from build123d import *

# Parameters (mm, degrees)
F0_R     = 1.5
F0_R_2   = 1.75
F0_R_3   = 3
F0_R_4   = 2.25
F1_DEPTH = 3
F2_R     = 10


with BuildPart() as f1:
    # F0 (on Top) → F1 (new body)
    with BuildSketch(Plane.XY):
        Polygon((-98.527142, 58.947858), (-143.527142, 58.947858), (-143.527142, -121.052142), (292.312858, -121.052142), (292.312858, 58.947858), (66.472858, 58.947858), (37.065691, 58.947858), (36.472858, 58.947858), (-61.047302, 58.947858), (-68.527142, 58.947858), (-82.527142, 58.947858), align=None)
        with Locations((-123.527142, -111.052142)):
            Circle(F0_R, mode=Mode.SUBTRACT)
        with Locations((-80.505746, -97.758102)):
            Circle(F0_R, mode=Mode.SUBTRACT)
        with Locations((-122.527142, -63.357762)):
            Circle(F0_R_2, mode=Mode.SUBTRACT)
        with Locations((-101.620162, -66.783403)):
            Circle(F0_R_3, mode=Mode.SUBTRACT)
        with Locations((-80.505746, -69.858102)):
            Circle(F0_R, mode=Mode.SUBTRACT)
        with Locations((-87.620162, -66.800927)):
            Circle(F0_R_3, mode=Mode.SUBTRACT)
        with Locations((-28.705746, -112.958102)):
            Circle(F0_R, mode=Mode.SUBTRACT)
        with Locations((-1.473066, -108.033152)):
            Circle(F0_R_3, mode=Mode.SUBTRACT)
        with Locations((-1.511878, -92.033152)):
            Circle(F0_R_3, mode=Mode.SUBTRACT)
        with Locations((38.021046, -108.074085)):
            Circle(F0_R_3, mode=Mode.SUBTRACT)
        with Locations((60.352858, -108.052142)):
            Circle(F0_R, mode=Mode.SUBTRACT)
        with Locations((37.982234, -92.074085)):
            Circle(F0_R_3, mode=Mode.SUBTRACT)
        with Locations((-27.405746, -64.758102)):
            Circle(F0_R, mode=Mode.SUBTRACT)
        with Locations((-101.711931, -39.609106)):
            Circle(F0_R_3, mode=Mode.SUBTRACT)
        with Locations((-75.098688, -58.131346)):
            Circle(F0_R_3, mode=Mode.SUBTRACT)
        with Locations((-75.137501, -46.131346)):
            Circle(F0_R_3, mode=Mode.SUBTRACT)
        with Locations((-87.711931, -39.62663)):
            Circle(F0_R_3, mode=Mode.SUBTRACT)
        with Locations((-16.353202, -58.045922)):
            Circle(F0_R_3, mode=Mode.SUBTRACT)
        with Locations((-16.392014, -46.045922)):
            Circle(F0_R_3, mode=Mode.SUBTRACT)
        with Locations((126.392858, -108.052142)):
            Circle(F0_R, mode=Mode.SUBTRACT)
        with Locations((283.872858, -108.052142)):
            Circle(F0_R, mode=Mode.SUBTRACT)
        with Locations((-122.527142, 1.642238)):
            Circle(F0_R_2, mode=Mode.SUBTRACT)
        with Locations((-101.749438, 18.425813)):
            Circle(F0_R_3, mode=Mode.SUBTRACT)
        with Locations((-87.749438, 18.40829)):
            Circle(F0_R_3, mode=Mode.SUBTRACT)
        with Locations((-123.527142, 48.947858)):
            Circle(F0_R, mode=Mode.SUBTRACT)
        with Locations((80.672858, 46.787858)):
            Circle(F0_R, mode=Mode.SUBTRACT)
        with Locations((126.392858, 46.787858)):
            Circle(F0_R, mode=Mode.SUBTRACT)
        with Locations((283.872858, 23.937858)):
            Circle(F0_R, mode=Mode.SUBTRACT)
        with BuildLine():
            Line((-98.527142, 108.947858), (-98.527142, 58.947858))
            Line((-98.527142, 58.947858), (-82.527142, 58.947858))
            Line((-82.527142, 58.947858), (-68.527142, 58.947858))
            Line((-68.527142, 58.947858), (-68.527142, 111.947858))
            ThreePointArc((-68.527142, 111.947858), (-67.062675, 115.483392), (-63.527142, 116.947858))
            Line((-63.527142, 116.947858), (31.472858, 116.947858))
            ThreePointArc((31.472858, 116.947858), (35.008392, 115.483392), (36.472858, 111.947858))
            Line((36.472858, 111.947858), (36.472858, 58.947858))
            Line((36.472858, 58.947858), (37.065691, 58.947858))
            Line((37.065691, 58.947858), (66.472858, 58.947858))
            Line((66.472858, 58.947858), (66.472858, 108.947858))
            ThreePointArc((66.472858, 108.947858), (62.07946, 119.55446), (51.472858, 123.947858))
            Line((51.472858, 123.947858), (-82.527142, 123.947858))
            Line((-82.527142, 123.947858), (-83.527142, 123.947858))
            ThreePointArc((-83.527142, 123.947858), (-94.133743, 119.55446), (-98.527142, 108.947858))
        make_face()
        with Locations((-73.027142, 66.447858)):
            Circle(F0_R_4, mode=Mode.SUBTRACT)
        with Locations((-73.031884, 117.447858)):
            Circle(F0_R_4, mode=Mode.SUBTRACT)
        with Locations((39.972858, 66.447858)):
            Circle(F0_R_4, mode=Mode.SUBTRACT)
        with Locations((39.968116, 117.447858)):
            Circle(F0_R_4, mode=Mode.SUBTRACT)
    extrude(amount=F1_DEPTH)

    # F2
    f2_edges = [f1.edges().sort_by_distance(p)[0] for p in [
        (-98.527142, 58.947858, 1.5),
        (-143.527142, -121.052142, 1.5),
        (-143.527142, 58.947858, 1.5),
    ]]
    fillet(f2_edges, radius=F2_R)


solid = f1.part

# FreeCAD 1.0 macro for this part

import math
import FreeCAD as App
import Part
import Sketcher
from FreeCAD import Vector


def edges_at(feature, points):
    """Names of the edges that pass closest to the given points."""
    edges = feature.Shape.Edges
    near = lambda p: min(range(len(edges)), key=lambda i: edges[i].distToShape(Part.Vertex(*p))[0])
    return sorted({f"Edge{near(p) + 1}" for p in points})

doc = App.newDocument("Part")
body = doc.addObject("PartDesign::Body", "Body")

sketch1 = body.newObject("Sketcher::SketchObject", "Sketch")
sketch1.AttachmentSupport = (doc.getObject("XY_Plane"), [""])
sketch1.MapMode = "FlatFace"
sketch1.addGeometry(Part.LineSegment(Vector(-143.5, 58.9, 0), Vector(-143.5, -121.1, 0)), False)
sketch1.addGeometry(Part.LineSegment(Vector(-143.5, -121.1, 0), Vector(292.3, -121.1, 0)), False)
sketch1.addGeometry(Part.LineSegment(Vector(292.3, -121.1, 0), Vector(292.3, 58.9, 0)), False)
sketch1.addGeometry(Part.LineSegment(Vector(292.3, 58.9, 0), Vector(66.5, 58.9, 0)), False)
sketch1.addGeometry(Part.LineSegment(Vector(66.5, 58.9, 0), Vector(66.5, 108.9, 0)), False)
sketch1.addGeometry(Part.ArcOfCircle(Part.Circle(Vector(51.5, 108.9, 0), Vector(0, 0, 1), 15), math.radians(0), math.radians(90)), False)
sketch1.addGeometry(Part.LineSegment(Vector(51.5, 123.9, 0), Vector(-83.5, 123.9, 0)), False)
sketch1.addGeometry(Part.ArcOfCircle(Part.Circle(Vector(-83.5, 108.9, 0), Vector(0, 0, 1), 15), math.radians(90), math.radians(180)), False)
sketch1.addGeometry(Part.LineSegment(Vector(-98.5, 108.9, 0), Vector(-98.5, 58.9, 0)), False)
sketch1.addGeometry(Part.LineSegment(Vector(-98.5, 58.9, 0), Vector(-143.5, 58.9, 0)), False)
sketch1.addGeometry(Part.Circle(Vector(-123.5, -111.1, 0), Vector(0, 0, 1), 1.5), False)
sketch1.addGeometry(Part.Circle(Vector(-80.5, -97.8, 0), Vector(0, 0, 1), 1.5), False)
sketch1.addGeometry(Part.Circle(Vector(-28.7, -113, 0), Vector(0, 0, 1), 1.5), False)
sketch1.addGeometry(Part.Circle(Vector(-122.5, -63.4, 0), Vector(0, 0, 1), 1.8), False)
sketch1.addGeometry(Part.Circle(Vector(-101.6, -66.8, 0), Vector(0, 0, 1), 3), False)
sketch1.addGeometry(Part.Circle(Vector(-87.6, -66.8, 0), Vector(0, 0, 1), 3), False)
sketch1.addGeometry(Part.Circle(Vector(-80.5, -69.9, 0), Vector(0, 0, 1), 1.5), False)
sketch1.addGeometry(Part.Circle(Vector(-75.1, -58.1, 0), Vector(0, 0, 1), 3), False)
sketch1.addGeometry(Part.Circle(Vector(-27.4, -64.8, 0), Vector(0, 0, 1), 1.5), False)
sketch1.addGeometry(Part.Circle(Vector(-1.5, -108, 0), Vector(0, 0, 1), 3), False)
sketch1.addGeometry(Part.Circle(Vector(-1.5, -92, 0), Vector(0, 0, 1), 3), False)
sketch1.addGeometry(Part.Circle(Vector(38, -108.1, 0), Vector(0, 0, 1), 3), False)
sketch1.addGeometry(Part.Circle(Vector(60.4, -108.1, 0), Vector(0, 0, 1), 1.5), False)
sketch1.addGeometry(Part.Circle(Vector(38, -92.1, 0), Vector(0, 0, 1), 3), False)
sketch1.addGeometry(Part.Circle(Vector(-16.4, -58, 0), Vector(0, 0, 1), 3), False)
sketch1.addGeometry(Part.Circle(Vector(-75.1, -46.1, 0), Vector(0, 0, 1), 3), False)
sketch1.addGeometry(Part.Circle(Vector(-101.7, -39.6, 0), Vector(0, 0, 1), 3), False)
sketch1.addGeometry(Part.Circle(Vector(-87.7, -39.6, 0), Vector(0, 0, 1), 3), False)
sketch1.addGeometry(Part.Circle(Vector(-122.5, 1.6, 0), Vector(0, 0, 1), 1.8), False)
sketch1.addGeometry(Part.Circle(Vector(-16.4, -46, 0), Vector(0, 0, 1), 3), False)
sketch1.addGeometry(Part.Circle(Vector(126.4, -108.1, 0), Vector(0, 0, 1), 1.5), False)
sketch1.addGeometry(Part.Circle(Vector(283.9, -108.1, 0), Vector(0, 0, 1), 1.5), False)
sketch1.addGeometry(Part.Circle(Vector(-101.7, 18.4, 0), Vector(0, 0, 1), 3), False)
sketch1.addGeometry(Part.Circle(Vector(-87.7, 18.4, 0), Vector(0, 0, 1), 3), False)
sketch1.addGeometry(Part.Circle(Vector(-123.5, 48.9, 0), Vector(0, 0, 1), 1.5), False)
sketch1.addGeometry(Part.Circle(Vector(-73, 66.4, 0), Vector(0, 0, 1), 2.2), False)
sketch1.addGeometry(Part.Circle(Vector(-73, 117.4, 0), Vector(0, 0, 1), 2.2), False)
sketch1.addGeometry(Part.LineSegment(Vector(36.5, 58.9, 0), Vector(-68.5, 58.9, 0)), False)
sketch1.addGeometry(Part.LineSegment(Vector(-68.5, 58.9, 0), Vector(-68.5, 111.9, 0)), False)
sketch1.addGeometry(Part.ArcOfCircle(Part.Circle(Vector(-63.5, 111.9, 0), Vector(0, 0, 1), 5), math.radians(90), math.radians(180)), False)
sketch1.addGeometry(Part.LineSegment(Vector(-63.5, 116.9, 0), Vector(31.5, 116.9, 0)), False)
sketch1.addGeometry(Part.ArcOfCircle(Part.Circle(Vector(31.5, 111.9, 0), Vector(0, 0, 1), 5), math.radians(0), math.radians(90)), False)
sketch1.addGeometry(Part.LineSegment(Vector(36.5, 111.9, 0), Vector(36.5, 58.9, 0)), False)
sketch1.addGeometry(Part.Circle(Vector(40, 66.4, 0), Vector(0, 0, 1), 2.2), False)
sketch1.addGeometry(Part.Circle(Vector(40, 117.4, 0), Vector(0, 0, 1), 2.2), False)
sketch1.addGeometry(Part.Circle(Vector(80.7, 46.8, 0), Vector(0, 0, 1), 1.5), False)
sketch1.addGeometry(Part.Circle(Vector(126.4, 46.8, 0), Vector(0, 0, 1), 1.5), False)
sketch1.addGeometry(Part.Circle(Vector(283.9, 23.9, 0), Vector(0, 0, 1), 1.5), False)
sketch1.addConstraint(Sketcher.Constraint("Coincident", 0, 2, 1, 1))
sketch1.addConstraint(Sketcher.Constraint("Coincident", 1, 2, 2, 1))
sketch1.addConstraint(Sketcher.Constraint("Coincident", 2, 2, 3, 1))
sketch1.addConstraint(Sketcher.Constraint("Coincident", 3, 2, 4, 1))
sketch1.addConstraint(Sketcher.Constraint("Tangent", 4, 2, 5, 1))
sketch1.addConstraint(Sketcher.Constraint("Tangent", 5, 2, 6, 1))
sketch1.addConstraint(Sketcher.Constraint("Tangent", 6, 2, 7, 1))
sketch1.addConstraint(Sketcher.Constraint("Tangent", 7, 2, 8, 1))
sketch1.addConstraint(Sketcher.Constraint("Coincident", 8, 2, 9, 1))
sketch1.addConstraint(Sketcher.Constraint("Coincident", 9, 2, 0, 1))
sketch1.addConstraint(Sketcher.Constraint("Coincident", 37, 2, 38, 1))
sketch1.addConstraint(Sketcher.Constraint("Tangent", 38, 2, 39, 2))
sketch1.addConstraint(Sketcher.Constraint("Tangent", 39, 1, 40, 1))
sketch1.addConstraint(Sketcher.Constraint("Tangent", 40, 2, 41, 2))
sketch1.addConstraint(Sketcher.Constraint("Tangent", 41, 1, 42, 1))
sketch1.addConstraint(Sketcher.Constraint("Coincident", 42, 2, 37, 1))
sketch1.addConstraint(Sketcher.Constraint("Vertical", 0))
sketch1.addConstraint(Sketcher.Constraint("Horizontal", 1))
sketch1.addConstraint(Sketcher.Constraint("Vertical", 2))
sketch1.addConstraint(Sketcher.Constraint("Horizontal", 3))
sketch1.addConstraint(Sketcher.Constraint("Vertical", 4))
sketch1.addConstraint(Sketcher.Constraint("Horizontal", 6))
sketch1.addConstraint(Sketcher.Constraint("Vertical", 8))
sketch1.addConstraint(Sketcher.Constraint("Horizontal", 9))
sketch1.addConstraint(Sketcher.Constraint("Horizontal", 37))
sketch1.addConstraint(Sketcher.Constraint("Vertical", 38))
sketch1.addConstraint(Sketcher.Constraint("Horizontal", 40))
sketch1.addConstraint(Sketcher.Constraint("Vertical", 42))
sketch1.addConstraint(Sketcher.Constraint("Equal", 5, 7))
sketch1.addConstraint(Sketcher.Constraint("Equal", 10, 11))
sketch1.addConstraint(Sketcher.Constraint("Equal", 11, 12))
sketch1.addConstraint(Sketcher.Constraint("Equal", 14, 15))
sketch1.addConstraint(Sketcher.Constraint("Equal", 12, 16))
sketch1.addConstraint(Sketcher.Constraint("Equal", 15, 17))
sketch1.addConstraint(Sketcher.Constraint("Equal", 16, 18))
sketch1.addConstraint(Sketcher.Constraint("Equal", 17, 19))
sketch1.addConstraint(Sketcher.Constraint("Equal", 19, 20))
sketch1.addConstraint(Sketcher.Constraint("Equal", 20, 21))
sketch1.addConstraint(Sketcher.Constraint("Equal", 18, 22))
sketch1.addConstraint(Sketcher.Constraint("Equal", 21, 23))
sketch1.addConstraint(Sketcher.Constraint("Equal", 23, 24))
sketch1.addConstraint(Sketcher.Constraint("Equal", 24, 25))
sketch1.addConstraint(Sketcher.Constraint("Equal", 25, 26))
sketch1.addConstraint(Sketcher.Constraint("Equal", 26, 27))
sketch1.addConstraint(Sketcher.Constraint("Equal", 13, 28))
sketch1.addConstraint(Sketcher.Constraint("Equal", 27, 29))
sketch1.addConstraint(Sketcher.Constraint("Equal", 22, 30))
sketch1.addConstraint(Sketcher.Constraint("Equal", 30, 31))
sketch1.addConstraint(Sketcher.Constraint("Equal", 29, 32))
sketch1.addConstraint(Sketcher.Constraint("Equal", 32, 33))
sketch1.addConstraint(Sketcher.Constraint("Equal", 31, 34))
sketch1.addConstraint(Sketcher.Constraint("Equal", 35, 36))
sketch1.addConstraint(Sketcher.Constraint("Equal", 39, 41))
sketch1.addConstraint(Sketcher.Constraint("Equal", 36, 43))
sketch1.addConstraint(Sketcher.Constraint("Equal", 43, 44))
sketch1.addConstraint(Sketcher.Constraint("Equal", 34, 45))
sketch1.addConstraint(Sketcher.Constraint("Equal", 45, 46))
sketch1.addConstraint(Sketcher.Constraint("Equal", 46, 47))
sketch1.addConstraint(Sketcher.Constraint("Horizontal", 22, 3, 30, 3))
sketch1.addConstraint(Sketcher.Constraint("Horizontal", 30, 3, 31, 3))
sketch1.addConstraint(Sketcher.Constraint("Horizontal", 35, 3, 43, 3))
sketch1.addConstraint(Sketcher.Constraint("Horizontal", 36, 3, 44, 3))
sketch1.addConstraint(Sketcher.Constraint("Horizontal", 45, 3, 46, 3))
sketch1.addConstraint(Sketcher.Constraint("Horizontal", 3, 2, 8, 2))
sketch1.addConstraint(Sketcher.Constraint("Horizontal", 9, 2, 37, 2))
sketch1.addConstraint(Sketcher.Constraint("Vertical", 11, 3, 16, 3))
sketch1.addConstraint(Sketcher.Constraint("Vertical", 13, 3, 28, 3))
sketch1.addConstraint(Sketcher.Constraint("Vertical", 10, 3, 34, 3))
sketch1.addConstraint(Sketcher.Constraint("Vertical", 30, 3, 46, 3))
sketch1.addConstraint(Sketcher.Constraint("Vertical", 31, 3, 47, 3))
sketch1.addConstraint(Sketcher.Constraint("Diameter", 10, 3.0))
sketch1.addConstraint(Sketcher.Constraint("Diameter", 14, 6.0))
sketch1.addConstraint(Sketcher.Constraint("Radius", 5, 14.999999))
sketch1.addConstraint(Sketcher.Constraint("Radius", 39, 5.000001))
sketch1.addConstraint(Sketcher.Constraint("Diameter", 13, 3.5))
sketch1.addConstraint(Sketcher.Constraint("Diameter", 35, 4.5))
sketch1.addConstraint(Sketcher.Constraint("DistanceX", 6, 2, 6, 1, 135.0))
sketch1.addConstraint(Sketcher.Constraint("DistanceX", 9, 2, 9, 1, 45.0))
sketch1.addConstraint(Sketcher.Constraint("DistanceX", 37, 2, 37, 1, 105.0))
sketch1.addConstraint(Sketcher.Constraint("DistanceY", 0, 2, 0, 1, 180.0))
sketch1.addConstraint(Sketcher.Constraint("DistanceY", 4, 1, 4, 2, 50.0))
sketch1.addConstraint(Sketcher.Constraint("DistanceY", 38, 1, 38, 2, 53.0))
sketch1.addConstraint(Sketcher.Constraint("DistanceX", 10, 3, 7, 3, 40.000001))
sketch1.addConstraint(Sketcher.Constraint("DistanceY", 10, 3, 7, 3, 219.999999))
sketch1.addConstraint(Sketcher.Constraint("DistanceX", 10, 3, 13, 3, 1.0))
sketch1.addConstraint(Sketcher.Constraint("DistanceX", 14, 3, 15, 3, 14.0))
sketch1.addConstraint(Sketcher.Constraint("DistanceY", 11, 3, 18, 3, 33.0))
sketch1.addConstraint(Sketcher.Constraint("DistanceY", 19, 3, 20, 3, 16.0))
sketch1.addConstraint(Sketcher.Constraint("DistanceY", 21, 3, 23, 3, 16.0))
sketch1.addConstraint(Sketcher.Constraint("DistanceY", 17, 3, 25, 3, 12.0))
sketch1.addConstraint(Sketcher.Constraint("DistanceX", 26, 3, 27, 3, 14.0))
sketch1.addConstraint(Sketcher.Constraint("DistanceY", 13, 3, 28, 3, 65.0))
sketch1.addConstraint(Sketcher.Constraint("DistanceY", 24, 3, 29, 3, 12.0))
sketch1.addConstraint(Sketcher.Constraint("DistanceX", 32, 3, 33, 3, 14.0))
sketch1.addConstraint(Sketcher.Constraint("DistanceY", 34, 3, 7, 3, 59.999999))
sketch1.addConstraint(Sketcher.Constraint("DistanceY", 35, 3, 36, 3, 51.0))
sketch1.addConstraint(Sketcher.Constraint("DistanceX", 7, 3, 39, 3, 20.000001))
sketch1.addConstraint(Sketcher.Constraint("DistanceX", 35, 3, 43, 3, 113.0))
sketch1.addConstraint(Sketcher.Constraint("DistanceX", 36, 3, 44, 3, 113.0))
sketch1.addConstraint(Sketcher.Constraint("DistanceY", 1, 2, 31, 3, 13.0))
sketch1.addConstraint(Sketcher.Constraint("DistanceX", 1, 1, 1, 2, 435.84))
sketch1.addConstraint(Sketcher.Constraint("DistanceX", 11, 3, 12, 3, 51.8))
sketch1.addConstraint(Sketcher.Constraint("DistanceY", 12, 3, 11, 3, 15.2))
sketch1.addConstraint(Sketcher.Constraint("DistanceY", 11, 3, 16, 3, 27.9))
sketch1.addConstraint(Sketcher.Constraint("DistanceX", 12, 3, 18, 3, 1.3))
sketch1.addConstraint(Sketcher.Constraint("DistanceX", 7, 3, 35, 3, 10.499999))
sketch1.addConstraint(Sketcher.Constraint("DistanceY", 35, 3, 7, 3, 42.499999))
sketch1.addConstraint(Sketcher.Constraint("DistanceX", 43, 3, 45, 3, 40.7))
sketch1.addConstraint(Sketcher.Constraint("DistanceX", 45, 3, 47, 3, 203.2))
sketch1.addConstraint(Sketcher.Constraint("DistanceX", 22, 3, 30, 3, 66.04))
sketch1.addConstraint(Sketcher.Constraint("DistanceX", 30, 3, 31, 3, 157.48))
sketch1.addConstraint(Sketcher.Constraint("DistanceY", 45, 3, 43, 3, 19.66))
sketch1.addConstraint(Sketcher.Constraint("DistanceY", 31, 3, 47, 3, 131.99))
sketch1.addConstraint(Sketcher.Constraint("DistanceY", 11, 3, -1, 1, 97.758102))
sketch1.addConstraint(Sketcher.Constraint("DistanceX", 24, 3, -1, 1, 16.353202))
sketch1.addConstraint(Sketcher.Constraint("DistanceX", 25, 3, -1, 1, 75.137501))
sketch1.addConstraint(Sketcher.Constraint("DistanceY", 11, 3, 14, 3, 30.974699))
sketch1.addConstraint(Sketcher.Constraint("DistanceX", 19, 3, 23, 3, 39.4553))
sketch1.addConstraint(Sketcher.Constraint("DistanceX", -1, 1, 5, 3, 51.472859))
sketch1.addConstraint(Sketcher.Constraint("DistanceY", -1, 1, 5, 3, 108.947859))
sketch1.addConstraint(Sketcher.Constraint("DistanceX", 14, 3, -1, 1, 101.620162))
sketch1.addConstraint(Sketcher.Constraint("DistanceY", 19, 3, -1, 1, 108.033152))
sketch1.addConstraint(Sketcher.Constraint("DistanceX", 20, 3, -1, 1, 1.511878))
sketch1.addConstraint(Sketcher.Constraint("DistanceY", 24, 3, -1, 1, 58.045922))
sketch1.addConstraint(Sketcher.Constraint("DistanceX", 26, 3, -1, 1, 101.711931))
sketch1.addConstraint(Sketcher.Constraint("DistanceY", 27, 3, -1, 1, 39.62663))
sketch1.addConstraint(Sketcher.Constraint("DistanceY", -1, 1, 28, 3, 1.642238))
sketch1.addConstraint(Sketcher.Constraint("DistanceY", -1, 1, 33, 3, 18.40829))
sketch1.addConstraint(Sketcher.Constraint("DistanceX", 16, 3, 17, 3, 5.407058))
sketch1.addConstraint(Sketcher.Constraint("DistanceY", 15, 3, 17, 3, 8.669581))
sketch1.addConstraint(Sketcher.Constraint("DistanceX", 12, 3, 19, 3, 27.23268))
sketch1.addConstraint(Sketcher.Constraint("DistanceX", 12, 3, 20, 3, 27.193868))
sketch1.addConstraint(Sketcher.Constraint("DistanceX", 11, 3, 21, 3, 118.526792))
sketch1.addConstraint(Sketcher.Constraint("DistanceY", 25, 3, 26, 3, 6.52224))
sketch1.addConstraint(Sketcher.Constraint("DistanceY", 26, 3, 32, 3, 58.034919))
sketch1.addConstraint(Sketcher.Constraint("DistanceX", 32, 3, 17, 3, 26.65075))
sketch1.addConstraint(Sketcher.Constraint("DistanceX", 44, 3, 4, 2, 26.504742))
sketch1.addConstraint(Sketcher.Constraint("DistanceY", 15, 3, -1, 1, 66.800927))
sketch1.addConstraint(Sketcher.Constraint("DistanceY", 21, 3, -1, 1, 108.074085))
sketch1.addConstraint(Sketcher.Constraint("DistanceX", 29, 3, -1, 1, 16.392014))
pad1 = body.newObject("PartDesign::Pad", "Pad")
pad1.Profile = sketch1
pad1.Length = 3
doc.recompute()

fillet = body.newObject("PartDesign::Fillet", "Fillet")
fillet.Base = (pad1, edges_at(pad1, [(-98.527, 58.948, 1.5), (-143.527, -121.052, 1.5), (-143.527, 58.948, 1.5)]))
fillet.Radius = 10

doc.recompute()
